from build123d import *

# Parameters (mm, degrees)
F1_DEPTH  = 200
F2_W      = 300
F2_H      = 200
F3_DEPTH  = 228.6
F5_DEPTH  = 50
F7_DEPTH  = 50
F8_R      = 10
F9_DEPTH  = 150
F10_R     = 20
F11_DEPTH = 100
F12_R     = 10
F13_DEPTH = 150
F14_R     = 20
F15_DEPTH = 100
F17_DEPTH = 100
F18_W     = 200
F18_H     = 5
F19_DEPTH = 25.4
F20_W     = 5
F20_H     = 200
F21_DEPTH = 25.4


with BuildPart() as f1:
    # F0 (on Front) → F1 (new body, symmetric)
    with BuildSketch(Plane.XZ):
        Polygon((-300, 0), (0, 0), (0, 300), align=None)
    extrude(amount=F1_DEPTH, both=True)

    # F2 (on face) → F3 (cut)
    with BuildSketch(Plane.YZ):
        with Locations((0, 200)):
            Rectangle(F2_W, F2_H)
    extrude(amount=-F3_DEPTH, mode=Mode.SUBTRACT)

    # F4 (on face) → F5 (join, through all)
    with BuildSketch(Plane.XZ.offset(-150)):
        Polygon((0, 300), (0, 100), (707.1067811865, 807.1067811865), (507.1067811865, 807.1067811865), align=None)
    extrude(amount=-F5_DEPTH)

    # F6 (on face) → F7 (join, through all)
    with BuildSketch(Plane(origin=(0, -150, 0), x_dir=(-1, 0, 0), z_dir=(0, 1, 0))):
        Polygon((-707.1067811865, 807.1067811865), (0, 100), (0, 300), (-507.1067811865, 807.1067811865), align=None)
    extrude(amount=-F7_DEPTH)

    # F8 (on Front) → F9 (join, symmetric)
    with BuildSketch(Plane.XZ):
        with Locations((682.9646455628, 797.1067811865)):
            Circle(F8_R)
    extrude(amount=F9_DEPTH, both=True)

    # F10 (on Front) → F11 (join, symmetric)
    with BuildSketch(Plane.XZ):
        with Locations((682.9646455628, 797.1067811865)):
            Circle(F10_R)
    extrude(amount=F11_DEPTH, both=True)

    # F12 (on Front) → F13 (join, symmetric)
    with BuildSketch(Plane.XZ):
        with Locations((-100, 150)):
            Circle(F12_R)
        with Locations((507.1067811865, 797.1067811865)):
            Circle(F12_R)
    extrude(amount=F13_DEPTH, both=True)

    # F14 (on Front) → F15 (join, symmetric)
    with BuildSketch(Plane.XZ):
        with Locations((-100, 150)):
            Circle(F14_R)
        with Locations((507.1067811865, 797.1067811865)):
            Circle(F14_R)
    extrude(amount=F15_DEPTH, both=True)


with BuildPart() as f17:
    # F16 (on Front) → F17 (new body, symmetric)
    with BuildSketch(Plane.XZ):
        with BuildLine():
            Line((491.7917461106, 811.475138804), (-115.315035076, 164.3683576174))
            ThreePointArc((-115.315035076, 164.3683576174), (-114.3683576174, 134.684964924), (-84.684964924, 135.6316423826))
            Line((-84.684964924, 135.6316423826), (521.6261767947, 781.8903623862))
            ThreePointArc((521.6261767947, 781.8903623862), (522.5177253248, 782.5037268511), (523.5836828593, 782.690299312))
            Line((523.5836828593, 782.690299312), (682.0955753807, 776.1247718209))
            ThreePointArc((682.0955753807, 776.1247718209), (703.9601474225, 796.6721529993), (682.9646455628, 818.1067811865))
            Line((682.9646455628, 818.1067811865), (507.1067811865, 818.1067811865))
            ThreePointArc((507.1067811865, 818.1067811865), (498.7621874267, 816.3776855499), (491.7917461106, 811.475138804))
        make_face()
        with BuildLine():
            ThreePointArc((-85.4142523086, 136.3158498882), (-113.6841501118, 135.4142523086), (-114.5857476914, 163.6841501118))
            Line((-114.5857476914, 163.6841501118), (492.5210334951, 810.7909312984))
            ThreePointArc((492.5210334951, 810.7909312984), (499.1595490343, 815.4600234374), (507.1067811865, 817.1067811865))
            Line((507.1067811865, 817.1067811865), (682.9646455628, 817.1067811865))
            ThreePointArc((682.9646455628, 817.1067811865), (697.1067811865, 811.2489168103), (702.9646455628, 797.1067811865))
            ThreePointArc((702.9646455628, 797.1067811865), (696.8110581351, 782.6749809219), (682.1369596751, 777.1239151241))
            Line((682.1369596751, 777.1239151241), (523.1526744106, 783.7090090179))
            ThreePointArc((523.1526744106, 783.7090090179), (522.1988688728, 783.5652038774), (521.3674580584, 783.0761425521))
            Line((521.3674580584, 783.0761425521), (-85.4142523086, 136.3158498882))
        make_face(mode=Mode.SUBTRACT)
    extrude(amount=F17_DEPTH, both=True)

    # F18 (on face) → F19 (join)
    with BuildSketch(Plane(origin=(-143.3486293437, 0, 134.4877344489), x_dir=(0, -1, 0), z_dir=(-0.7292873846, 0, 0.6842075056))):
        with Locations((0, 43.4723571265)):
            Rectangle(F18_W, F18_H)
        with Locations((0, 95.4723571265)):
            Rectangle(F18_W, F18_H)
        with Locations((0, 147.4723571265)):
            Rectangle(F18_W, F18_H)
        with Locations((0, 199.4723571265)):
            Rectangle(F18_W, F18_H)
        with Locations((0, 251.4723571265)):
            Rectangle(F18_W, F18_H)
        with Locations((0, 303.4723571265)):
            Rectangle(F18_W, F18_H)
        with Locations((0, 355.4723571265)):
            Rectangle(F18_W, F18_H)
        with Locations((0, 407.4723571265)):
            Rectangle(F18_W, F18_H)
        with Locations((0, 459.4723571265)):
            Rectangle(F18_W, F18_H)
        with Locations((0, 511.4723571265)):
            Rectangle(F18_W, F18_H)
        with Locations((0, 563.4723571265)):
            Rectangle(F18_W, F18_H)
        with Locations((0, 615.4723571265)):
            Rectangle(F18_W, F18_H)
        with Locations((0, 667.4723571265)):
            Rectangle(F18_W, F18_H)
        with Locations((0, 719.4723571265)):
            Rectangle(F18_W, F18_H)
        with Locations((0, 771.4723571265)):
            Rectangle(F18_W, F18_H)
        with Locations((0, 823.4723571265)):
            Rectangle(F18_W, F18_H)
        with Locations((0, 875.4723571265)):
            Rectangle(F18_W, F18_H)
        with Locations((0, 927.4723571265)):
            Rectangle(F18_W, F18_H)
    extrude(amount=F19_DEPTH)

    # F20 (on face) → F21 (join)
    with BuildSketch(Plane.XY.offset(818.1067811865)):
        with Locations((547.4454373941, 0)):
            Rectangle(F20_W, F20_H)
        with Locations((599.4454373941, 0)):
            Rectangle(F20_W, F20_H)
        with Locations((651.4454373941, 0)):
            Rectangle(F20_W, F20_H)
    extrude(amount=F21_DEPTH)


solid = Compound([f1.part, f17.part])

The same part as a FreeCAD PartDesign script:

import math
import FreeCAD as App
import Part
import Sketcher

V = App.Vector


def add_polygon(sketch, points):
    """Adds a closed chain of lines whose ends are joined by coincident constraints."""
    first, n = sketch.GeometryCount, len(points)
    for a, b in zip(points, points[1:] + points[:1]):
        sketch.addGeometry(Part.LineSegment(App.Vector(*a, 0), App.Vector(*b, 0)), False)
    for i in range(n):
        sketch.addConstraint(Sketcher.Constraint("Coincident", first + i, 2, first + (i + 1) % n, 1))

doc = App.newDocument("Part")
body = doc.addObject("PartDesign::Body", "Body")

sketch1 = body.newObject("Sketcher::SketchObject", "Sketch")
sketch1.AttachmentSupport = (doc.getObject("XZ_Plane"), [""])
sketch1.MapMode = "FlatFace"
add_polygon(sketch1, [(-300, 0), (0, 0), (0, 300)])
sketch1.addConstraint(Sketcher.Constraint("Horizontal", 0))
sketch1.addConstraint(Sketcher.Constraint("Vertical", 1))
sketch1.addConstraint(Sketcher.Constraint("Coincident", 0, 2, -1, 1))
sketch1.addConstraint(Sketcher.Constraint("Equal", 0, 1))
sketch1.addConstraint(Sketcher.Constraint("DistanceX", 0, 1, 0, 2, 300.0))
pad1 = body.newObject("PartDesign::Pad", "Pad")
pad1.Profile = sketch1
pad1.Length = 400
pad1.Midplane = True

sketch2 = body.newObject("Sketcher::SketchObject", "Sketch001")
sketch2.AttachmentSupport = (doc.getObject("YZ_Plane"), [""])
sketch2.MapMode = "FlatFace"
add_polygon(sketch2, [(-150, 300), (-150, 100), (150, 100), (150, 300)])
sketch2.addConstraint(Sketcher.Constraint("Vertical", 0))
sketch2.addConstraint(Sketcher.Constraint("Horizontal", 1))
sketch2.addConstraint(Sketcher.Constraint("Vertical", 2))
sketch2.addConstraint(Sketcher.Constraint("Horizontal", 3))
sketch2.addConstraint(Sketcher.Constraint("DistanceX", 1, 1, 1, 2, 300.0))
sketch2.addConstraint(Sketcher.Constraint("DistanceY", 0, 2, 0, 1, 200.0))
sketch2.addConstraint(Sketcher.Constraint("DistanceX", 0, 2, -1, 1, 150.0))
sketch2.addConstraint(Sketcher.Constraint("DistanceY", -1, 1, 0, 2, 100.0))
pocket1 = body.newObject("PartDesign::Pocket", "Pocket")
pocket1.Profile = sketch2
pocket1.Length = 228.6

sketch3 = body.newObject("Sketcher::SketchObject", "Sketch002")
sketch3.AttachmentSupport = (doc.getObject("XZ_Plane"), [""])
sketch3.MapMode = "FlatFace"
sketch3.AttachmentOffset = App.Placement(V(0, 0, -150), App.Rotation())
add_polygon(sketch3, [(0, 300), (0, 100), (707.106781, 807.106781), (507.106781, 807.106781)])
sketch3.addConstraint(Sketcher.Constraint("Vertical", 0))
sketch3.addConstraint(Sketcher.Constraint("Horizontal", 2))
sketch3.addConstraint(Sketcher.Constraint("PointOnObject", 0, 2, -2))
sketch3.addConstraint(Sketcher.Constraint("Parallel", 1, 3))
sketch3.addConstraint(Sketcher.Constraint("Equal", 2, 0))
sketch3.addConstraint(Sketcher.Constraint("DistanceX", 2, 2, 2, 1, 200.0))
sketch3.addConstraint(Sketcher.Constraint("Distance", 1, 1000.0))
sketch3.addConstraint(Sketcher.Constraint("DistanceY", -1, 1, 0, 2, 100.0))
pad2 = body.newObject("PartDesign::Pad", "Pad001")
pad2.Profile = sketch3
pad2.Length = 50
pad2.Reversed = True

sketch4 = body.newObject("Sketcher::SketchObject", "Sketch003")
sketch4.AttachmentSupport = (doc.getObject("XZ_Plane"), [""])
sketch4.MapMode = "FlatFace"
sketch4.AttachmentOffset = App.Placement(V(0, 0, 150), App.Rotation())
add_polygon(sketch4, [(707.106781, 807.106781), (0, 100), (0, 300), (507.106781, 807.106781)])
sketch4.addConstraint(Sketcher.Constraint("Vertical", 1))
sketch4.addConstraint(Sketcher.Constraint("Horizontal", 3))
sketch4.addConstraint(Sketcher.Constraint("PointOnObject", 0, 2, -2))
sketch4.addConstraint(Sketcher.Constraint("Parallel", 0, 2))
sketch4.addConstraint(Sketcher.Constraint("Equal", 3, 1))
sketch4.addConstraint(Sketcher.Constraint("DistanceX", 3, 1, 3, 2, 200.0))
sketch4.addConstraint(Sketcher.Constraint("Distance", 0, 1000.0))
sketch4.addConstraint(Sketcher.Constraint("DistanceY", -1, 1, 0, 2, 100.0))
pad3 = body.newObject("PartDesign::Pad", "Pad002")
pad3.Profile = sketch4
pad3.Length = 50

sketch5 = body.newObject("Sketcher::SketchObject", "Sketch004")
sketch5.AttachmentSupport = (doc.getObject("XZ_Plane"), [""])
sketch5.MapMode = "FlatFace"
sketch5.addGeometry(Part.Circle(V(682.964646, 797.106781, 0), V(0, 0, 1), 10), False)
sketch5.addConstraint(Sketcher.Constraint("Diameter", 0, 20.0))
sketch5.addConstraint(Sketcher.Constraint("DistanceY", -1, 1, 0, 3, 797.106781))
sketch5.addConstraint(Sketcher.Constraint("DistanceX", -1, 1, 0, 3, 682.964646))
pad4 = body.newObject("PartDesign::Pad", "Pad003")
pad4.Profile = sketch5
pad4.Length = 300
pad4.Midplane = True

sketch6 = body.newObject("Sketcher::SketchObject", "Sketch005")
sketch6.AttachmentSupport = (doc.getObject("XZ_Plane"), [""])
sketch6.MapMode = "FlatFace"
sketch6.addGeometry(Part.Circle(V(682.964646, 797.106781, 0), V(0, 0, 1), 20), False)
sketch6.addConstraint(Sketcher.Constraint("Diameter", 0, 40.0))
sketch6.addConstraint(Sketcher.Constraint("DistanceY", -1, 1, 0, 3, 797.106781))
sketch6.addConstraint(Sketcher.Constraint("DistanceX", -1, 1, 0, 3, 682.964646))
pad5 = body.newObject("PartDesign::Pad", "Pad004")
pad5.Profile = sketch6
pad5.Length = 200
pad5.Midplane = True

sketch7 = body.newObject("Sketcher::SketchObject", "Sketch006")
sketch7.AttachmentSupport = (doc.getObject("XZ_Plane"), [""])
sketch7.MapMode = "FlatFace"
sketch7.addGeometry(Part.Circle(V(-100, 150, 0), V(0, 0, 1), 10), False)
sketch7.addGeometry(Part.Circle(V(507.106781, 797.106781, 0), V(0, 0, 1), 10), False)
sketch7.addConstraint(Sketcher.Constraint("Equal", 0, 1))
sketch7.addConstraint(Sketcher.Constraint("Diameter", 0, 20.0))
sketch7.addConstraint(Sketcher.Constraint("DistanceX", 0, 3, -1, 1, 100.0))
sketch7.addConstraint(Sketcher.Constraint("DistanceY", -1, 1, 0, 3, 150.0))
sketch7.addConstraint(Sketcher.Constraint("DistanceX", -1, 1, 1, 3, 507.106781))
sketch7.addConstraint(Sketcher.Constraint("DistanceY", -1, 1, 1, 3, 797.106781))
pad6 = body.newObject("PartDesign::Pad", "Pad005")
pad6.Profile = sketch7
pad6.Length = 300
pad6.Midplane = True

sketch8 = body.newObject("Sketcher::SketchObject", "Sketch007")
sketch8.AttachmentSupport = (doc.getObject("XZ_Plane"), [""])
sketch8.MapMode = "FlatFace"
sketch8.addGeometry(Part.Circle(V(-100, 150, 0), V(0, 0, 1), 20), False)
sketch8.addGeometry(Part.Circle(V(507.106781, 797.106781, 0), V(0, 0, 1), 20), False)
sketch8.addConstraint(Sketcher.Constraint("Equal", 0, 1))
sketch8.addConstraint(Sketcher.Constraint("Diameter", 0, 40.0))
sketch8.addConstraint(Sketcher.Constraint("DistanceX", 0, 3, -1, 1, 100.0))
sketch8.addConstraint(Sketcher.Constraint("DistanceY", -1, 1, 0, 3, 150.0))
sketch8.addConstraint(Sketcher.Constraint("DistanceX", -1, 1, 1, 3, 507.106781))
sketch8.addConstraint(Sketcher.Constraint("DistanceY", -1, 1, 1, 3, 797.106781))
pad7 = body.newObject("PartDesign::Pad", "Pad006")
pad7.Profile = sketch8
pad7.Length = 200
pad7.Midplane = True
body2 = doc.addObject("PartDesign::Body", "Body001")

sketch9 = body2.newObject("Sketcher::SketchObject", "Sketch008")
sketch9.AttachmentSupport = (doc.getObject("XZ_Plane001"), [""])
sketch9.MapMode = "FlatFace"
sketch9.addGeometry(Part.LineSegment(V(491.791746, 811.475139, 0), V(-115.315035, 164.368358, 0)), False)
sketch9.addGeometry(Part.ArcOfCircle(Part.Circle(V(-100, 150, 0), V(0, 0, 1), 21), math.radians(136.826686), math.radians(316.826686)), False)
sketch9.addGeometry(Part.LineSegment(V(-84.684965, 135.631642, 0), V(521.626177, 781.890362, 0)), False)
sketch9.addGeometry(Part.ArcOfCircle(Part.Circle(V(523.478567, 780.152475, 0), V(0, 0, 1), 2.54), math.radians(87.628177), math.radians(136.826686)), False)
sketch9.addGeometry(Part.LineSegment(V(523.583683, 782.690299, 0), V(682.095575, 776.124772, 0)), False)
sketch9.addGeometry(Part.ArcOfCircle(Part.Circle(V(682.964646, 797.106781, 0), V(0, 0, 1), 21), math.radians(-92.371823), math.radians(90)), False)
sketch9.addGeometry(Part.LineSegment(V(682.964646, 818.106781, 0), V(507.106781, 818.106781, 0)), False)
sketch9.addGeometry(Part.ArcOfCircle(Part.Circle(V(507.106781, 797.106781, 0), V(0, 0, 1), 21), math.radians(90), math.radians(136.826686)), False)
sketch9.addGeometry(Part.LineSegment(V(521.367458, 783.076143, 0), V(-85.414252, 136.31585, 0)), False)
sketch9.addGeometry(Part.ArcOfCircle(Part.Circle(V(-100, 150, 0), V(0, 0, 1), 20), math.radians(136.826686), math.radians(316.826686)), False)
sketch9.addGeometry(Part.LineSegment(V(-114.585748, 163.68415, 0), V(492.521033, 810.790931, 0)), False)
sketch9.addGeometry(Part.ArcOfCircle(Part.Circle(V(507.106781, 797.106781, 0), V(0, 0, 1), 20), math.radians(90), math.radians(136.826686)), False)
sketch9.addGeometry(Part.LineSegment(V(507.106781, 817.106781, 0), V(682.964646, 817.106781, 0)), False)
sketch9.addGeometry(Part.ArcOfCircle(Part.Circle(V(682.964646, 797.106781, 0), V(0, 0, 1), 20), math.radians(0), math.radians(90)), False)
sketch9.addGeometry(Part.ArcOfCircle(Part.Circle(V(682.964646, 797.106781, 0), V(0, 0, 1), 20), math.radians(-92.371823), math.radians(0)), False)
sketch9.addGeometry(Part.LineSegment(V(682.13696, 777.123915, 0), V(523.152674, 783.709009, 0)), False)
sketch9.addGeometry(Part.ArcOfCircle(Part.Circle(V(523.047558, 781.171185, 0), V(0, 0, 1), 2.54), math.radians(87.628177), math.radians(131.411071)), False)
sketch9.addConstraint(Sketcher.Constraint("Tangent", 0, 2, 1, 1))
sketch9.addConstraint(Sketcher.Constraint("Tangent", 1, 2, 2, 1))
sketch9.addConstraint(Sketcher.Constraint("Tangent", 2, 2, 3, 2))
sketch9.addConstraint(Sketcher.Constraint("Tangent", 3, 1, 4, 1))
sketch9.addConstraint(Sketcher.Constraint("Tangent", 4, 2, 5, 1))
sketch9.addConstraint(Sketcher.Constraint("Tangent", 5, 2, 6, 1))
sketch9.addConstraint(Sketcher.Constraint("Tangent", 6, 2, 7, 1))
sketch9.addConstraint(Sketcher.Constraint("Tangent", 7, 2, 0, 1))
sketch9.addConstraint(Sketcher.Constraint("Tangent", 8, 2, 9, 2))
sketch9.addConstraint(Sketcher.Constraint("Tangent", 9, 1, 10, 1))
sketch9.addConstraint(Sketcher.Constraint("Tangent", 10, 2, 11, 2))
sketch9.addConstraint(Sketcher.Constraint("Tangent", 11, 1, 12, 1))
sketch9.addConstraint(Sketcher.Constraint("Tangent", 12, 2, 13, 2))
sketch9.addConstraint(Sketcher.Constraint("Tangent", 13, 1, 14, 2))
sketch9.addConstraint(Sketcher.Constraint("Tangent", 14, 1, 15, 1))
sketch9.addConstraint(Sketcher.Constraint("Tangent", 15, 2, 16, 1))
sketch9.addConstraint(Sketcher.Constraint("Coincident", 16, 2, 8, 1))
sketch9.addConstraint(Sketcher.Constraint("Horizontal", 6))
sketch9.addConstraint(Sketcher.Constraint("Horizontal", 12))
sketch9.addConstraint(Sketcher.Constraint("Coincident", 9, 3, 1, 3))
sketch9.addConstraint(Sketcher.Constraint("Coincident", 11, 3, 7, 3))
sketch9.addConstraint(Sketcher.Constraint("Coincident", 13, 3, 5, 3))
sketch9.addConstraint(Sketcher.Constraint("Equal", 1, 5))
sketch9.addConstraint(Sketcher.Constraint("Equal", 5, 7))
sketch9.addConstraint(Sketcher.Constraint("Equal", 9, 11))
sketch9.addConstraint(Sketcher.Constraint("Equal", 13, 14))
sketch9.addConstraint(Sketcher.Constraint("Equal", 3, 16))
sketch9.addConstraint(Sketcher.Constraint("Parallel", 0, 2))
sketch9.addConstraint(Sketcher.Constraint("Parallel", 2, 8))
sketch9.addConstraint(Sketcher.Constraint("Parallel", 4, 15))
sketch9.addConstraint(Sketcher.Constraint("Horizontal", 14, 3, 13, 1))
sketch9.addConstraint(Sketcher.Constraint("Radius", 1, 21.0))
sketch9.addConstraint(Sketcher.Constraint("Radius", 9, 20.0))
sketch9.addConstraint(Sketcher.Constraint("Radius", 3, 2.54))
sketch9.addConstraint(Sketcher.Constraint("DistanceX", 1, 3, -1, 1, 100.0))
sketch9.addConstraint(Sketcher.Constraint("DistanceY", -1, 1, 1, 3, 150.0))
sketch9.addConstraint(Sketcher.Constraint("DistanceY", -1, 1, 3, 1, 782.690299))
sketch9.addConstraint(Sketcher.Constraint("DistanceX", 0, 2, 3, 3, 638.793602))
sketch9.addConstraint(Sketcher.Constraint("DistanceX", 7, 3, 3, 1, 16.476902))
sketch9.addConstraint(Sketcher.Constraint("DistanceX", 16, 2, 16, 3, 1.6801))
sketch9.addConstraint(Sketcher.Constraint("DistanceX", 6, 2, 6, 1, 175.857864))
pad8 = body2.newObject("PartDesign::Pad", "Pad007")
pad8.Profile = sketch9
pad8.Length = 200
pad8.Midplane = True

sketch10 = body2.newObject("Sketcher::SketchObject", "Sketch009")
sketch10.Placement = App.Placement(V(-143.348629, 0, 134.487734), App.Rotation(V(0, -1, 0), V(0.684207506, 0, 0.729287385), V(-0.729287385, 0, 0.684207506), "ZXY"))
add_polygon(sketch10, [(-100, 45.972357), (-100, 40.972357), (100, 40.972357), (100, 45.972357)])
add_polygon(sketch10, [(-100, 97.972357), (-100, 92.972357), (100, 92.972357), (100, 97.972357)])
add_polygon(sketch10, [(-100, 149.972357), (-100, 144.972357), (100, 144.972357), (100, 149.972357)])
add_polygon(sketch10, [(-100, 201.972357), (-100, 196.972357), (100, 196.972357), (100, 201.972357)])
add_polygon(sketch10, [(-100, 253.972357), (-100, 248.972357), (100, 248.972357), (100, 253.972357)])
add_polygon(sketch10, [(-100, 305.972357), (-100, 300.972357), (100, 300.972357), (100, 305.972357)])
add_polygon(sketch10, [(-100, 357.972358), (-100, 352.972358), (100, 352.972358), (100, 357.972358)])
add_polygon(sketch10, [(-100, 409.972358), (-100, 404.972358), (100, 404.972358), (100, 409.972358)])
add_polygon(sketch10, [(-100, 461.972358), (-100, 456.972358), (100, 456.972358), (100, 461.972358)])
add_polygon(sketch10, [(-100, 513.972358), (-100, 508.972358), (100, 508.972358), (100, 513.972358)])
add_polygon(sketch10, [(-100, 565.972358), (-100, 560.972358), (100, 560.972358), (100, 565.972358)])
add_polygon(sketch10, [(-100, 617.972358), (-100, 612.972358), (100, 612.972358), (100, 617.972358)])
add_polygon(sketch10, [(-100, 669.972358), (-100, 664.972358), (100, 664.972358), (100, 669.972358)])
add_polygon(sketch10, [(-100, 721.972358), (-100, 716.972358), (100, 716.972358), (100, 721.972358)])
add_polygon(sketch10, [(-100, 773.972358), (-100, 768.972358), (100, 768.972358), (100, 773.972358)])
add_polygon(sketch10, [(-100, 825.972358), (-100, 820.972358), (100, 820.972358), (100, 825.972358)])
add_polygon(sketch10, [(-100, 877.972358), (-100, 872.972358), (100, 872.972358), (100, 877.972358)])
add_polygon(sketch10, [(-100, 929.972358), (-100, 924.972358), (100, 924.972358), (100, 929.972358)])
sketch10.addConstraint(Sketcher.Constraint("Vertical", 0))
sketch10.addConstraint(Sketcher.Constraint("Horizontal", 1))
sketch10.addConstraint(Sketcher.Constraint("Vertical", 2))
sketch10.addConstraint(Sketcher.Constraint("Horizontal", 3))
sketch10.addConstraint(Sketcher.Constraint("Vertical", 4))
sketch10.addConstraint(Sketcher.Constraint("Horizontal", 5))
sketch10.addConstraint(Sketcher.Constraint("Vertical", 6))
sketch10.addConstraint(Sketcher.Constraint("Horizontal", 7))
sketch10.addConstraint(Sketcher.Constraint("Vertical", 8))
sketch10.addConstraint(Sketcher.Constraint("Horizontal", 9))
sketch10.addConstraint(Sketcher.Constraint("Vertical", 10))
sketch10.addConstraint(Sketcher.Constraint("Horizontal", 11))
sketch10.addConstraint(Sketcher.Constraint("Vertical", 12))
sketch10.addConstraint(Sketcher.Constraint("Horizontal", 13))
sketch10.addConstraint(Sketcher.Constraint("Vertical", 14))
sketch10.addConstraint(Sketcher.Constraint("Horizontal", 15))
sketch10.addConstraint(Sketcher.Constraint("Vertical", 16))
sketch10.addConstraint(Sketcher.Constraint("Horizontal", 17))
sketch10.addConstraint(Sketcher.Constraint("Vertical", 18))
sketch10.addConstraint(Sketcher.Constraint("Horizontal", 19))
sketch10.addConstraint(Sketcher.Constraint("Vertical", 20))
sketch10.addConstraint(Sketcher.Constraint("Horizontal", 21))
sketch10.addConstraint(Sketcher.Constraint("Vertical", 22))
sketch10.addConstraint(Sketcher.Constraint("Horizontal", 23))
sketch10.addConstraint(Sketcher.Constraint("Vertical", 24))
sketch10.addConstraint(Sketcher.Constraint("Horizontal", 25))
sketch10.addConstraint(Sketcher.Constraint("Vertical", 26))
sketch10.addConstraint(Sketcher.Constraint("Horizontal", 27))
sketch10.addConstraint(Sketcher.Constraint("Vertical", 28))
sketch10.addConstraint(Sketcher.Constraint("Horizontal", 29))
sketch10.addConstraint(Sketcher.Constraint("Vertical", 30))
sketch10.addConstraint(Sketcher.Constraint("Horizontal", 31))
sketch10.addConstraint(Sketcher.Constraint("Vertical", 32))
sketch10.addConstraint(Sketcher.Constraint("Horizontal", 33))
sketch10.addConstraint(Sketcher.Constraint("Vertical", 34))
sketch10.addConstraint(Sketcher.Constraint("Horizontal", 35))
sketch10.addConstraint(Sketcher.Constraint("Vertical", 36))
sketch10.addConstraint(Sketcher.Constraint("Horizontal", 37))
sketch10.addConstraint(Sketcher.Constraint("Vertical", 38))
sketch10.addConstraint(Sketcher.Constraint("Horizontal", 39))
sketch10.addConstraint(Sketcher.Constraint("Vertical", 40))
sketch10.addConstraint(Sketcher.Constraint("Horizontal", 41))
sketch10.addConstraint(Sketcher.Constraint("Vertical", 42))
sketch10.addConstraint(Sketcher.Constraint("Horizontal", 43))
sketch10.addConstraint(Sketcher.Constraint("Vertical", 44))
sketch10.addConstraint(Sketcher.Constraint("Horizontal", 45))
sketch10.addConstraint(Sketcher.Constraint("Vertical", 46))
sketch10.addConstraint(Sketcher.Constraint("Horizontal", 47))
sketch10.addConstraint(Sketcher.Constraint("Vertical", 48))
sketch10.addConstraint(Sketcher.Constraint("Horizontal", 49))
sketch10.addConstraint(Sketcher.Constraint("Vertical", 50))
sketch10.addConstraint(Sketcher.Constraint("Horizontal", 51))
sketch10.addConstraint(Sketcher.Constraint("Vertical", 52))
sketch10.addConstraint(Sketcher.Constraint("Horizontal", 53))
sketch10.addConstraint(Sketcher.Constraint("Vertical", 54))
sketch10.addConstraint(Sketcher.Constraint("Horizontal", 55))
sketch10.addConstraint(Sketcher.Constraint("Vertical", 56))
sketch10.addConstraint(Sketcher.Constraint("Horizontal", 57))
sketch10.addConstraint(Sketcher.Constraint("Vertical", 58))
sketch10.addConstraint(Sketcher.Constraint("Horizontal", 59))
sketch10.addConstraint(Sketcher.Constraint("Vertical", 60))
sketch10.addConstraint(Sketcher.Constraint("Horizontal", 61))
sketch10.addConstraint(Sketcher.Constraint("Vertical", 62))
sketch10.addConstraint(Sketcher.Constraint("Horizontal", 63))
sketch10.addConstraint(Sketcher.Constraint("Vertical", 64))
sketch10.addConstraint(Sketcher.Constraint("Horizontal", 65))
sketch10.addConstraint(Sketcher.Constraint("Vertical", 66))
sketch10.addConstraint(Sketcher.Constraint("Horizontal", 67))
sketch10.addConstraint(Sketcher.Constraint("Vertical", 68))
sketch10.addConstraint(Sketcher.Constraint("Horizontal", 69))
sketch10.addConstraint(Sketcher.Constraint("Vertical", 70))
sketch10.addConstraint(Sketcher.Constraint("Horizontal", 71))
sketch10.addConstraint(Sketcher.Constraint("Vertical", 3, 2, 4, 2))
sketch10.addConstraint(Sketcher.Constraint("Vertical", 2, 2, 5, 2))
sketch10.addConstraint(Sketcher.Constraint("Vertical", 7, 2, 8, 2))
sketch10.addConstraint(Sketcher.Constraint("Vertical", 6, 2, 9, 2))
sketch10.addConstraint(Sketcher.Constraint("Vertical", 11, 2, 12, 2))
sketch10.addConstraint(Sketcher.Constraint("Vertical", 10, 2, 13, 2))
sketch10.addConstraint(Sketcher.Constraint("Vertical", 15, 2, 16, 2))
sketch10.addConstraint(Sketcher.Constraint("Vertical", 14, 2, 17, 2))
sketch10.addConstraint(Sketcher.Constraint("Vertical", 19, 2, 20, 2))
sketch10.addConstraint(Sketcher.Constraint("Vertical", 18, 2, 21, 2))
sketch10.addConstraint(Sketcher.Constraint("Vertical", 23, 2, 24, 2))
sketch10.addConstraint(Sketcher.Constraint("Vertical", 22, 2, 25, 2))
sketch10.addConstraint(Sketcher.Constraint("Vertical", 27, 2, 28, 2))
sketch10.addConstraint(Sketcher.Constraint("Vertical", 26, 2, 29, 2))
sketch10.addConstraint(Sketcher.Constraint("Vertical", 31, 2, 32, 2))
sketch10.addConstraint(Sketcher.Constraint("Vertical", 30, 2, 33, 2))
sketch10.addConstraint(Sketcher.Constraint("Vertical", 35, 2, 36, 2))
sketch10.addConstraint(Sketcher.Constraint("Vertical", 34, 2, 37, 2))
sketch10.addConstraint(Sketcher.Constraint("Vertical", 39, 2, 40, 2))
sketch10.addConstraint(Sketcher.Constraint("Vertical", 38, 2, 41, 2))
sketch10.addConstraint(Sketcher.Constraint("Vertical", 43, 2, 44, 2))
sketch10.addConstraint(Sketcher.Constraint("Vertical", 42, 2, 45, 2))
sketch10.addConstraint(Sketcher.Constraint("Vertical", 47, 2, 48, 2))
sketch10.addConstraint(Sketcher.Constraint("Vertical", 46, 2, 49, 2))
sketch10.addConstraint(Sketcher.Constraint("Vertical", 51, 2, 52, 2))
sketch10.addConstraint(Sketcher.Constraint("Vertical", 50, 2, 53, 2))
sketch10.addConstraint(Sketcher.Constraint("Vertical", 55, 2, 56, 2))
sketch10.addConstraint(Sketcher.Constraint("Vertical", 54, 2, 57, 2))
sketch10.addConstraint(Sketcher.Constraint("Vertical", 59, 2, 60, 2))
sketch10.addConstraint(Sketcher.Constraint("Vertical", 58, 2, 61, 2))
sketch10.addConstraint(Sketcher.Constraint("Vertical", 63, 2, 64, 2))
sketch10.addConstraint(Sketcher.Constraint("Vertical", 62, 2, 65, 2))
sketch10.addConstraint(Sketcher.Constraint("Vertical", 67, 2, 68, 2))
sketch10.addConstraint(Sketcher.Constraint("Vertical", 66, 2, 69, 2))
sketch10.addConstraint(Sketcher.Constraint("Equal", 2, 4))
sketch10.addConstraint(Sketcher.Constraint("Equal", 6, 8))
sketch10.addConstraint(Sketcher.Constraint("Equal", 10, 12))
sketch10.addConstraint(Sketcher.Constraint("Equal", 14, 16))
sketch10.addConstraint(Sketcher.Constraint("Equal", 18, 20))
sketch10.addConstraint(Sketcher.Constraint("Equal", 22, 24))
sketch10.addConstraint(Sketcher.Constraint("Equal", 26, 28))
sketch10.addConstraint(Sketcher.Constraint("Equal", 30, 32))
sketch10.addConstraint(Sketcher.Constraint("Equal", 34, 36))
sketch10.addConstraint(Sketcher.Constraint("Equal", 38, 40))
sketch10.addConstraint(Sketcher.Constraint("Equal", 42, 44))
sketch10.addConstraint(Sketcher.Constraint("Equal", 46, 48))
sketch10.addConstraint(Sketcher.Constraint("Equal", 50, 52))
sketch10.addConstraint(Sketcher.Constraint("Equal", 54, 56))
sketch10.addConstraint(Sketcher.Constraint("Equal", 58, 60))
sketch10.addConstraint(Sketcher.Constraint("Equal", 62, 64))
sketch10.addConstraint(Sketcher.Constraint("Equal", 66, 68))
sketch10.addConstraint(Sketcher.Constraint("DistanceX", 1, 1, 1, 2, 200.0))
sketch10.addConstraint(Sketcher.Constraint("DistanceY", 0, 2, 0, 1, 5.0))
sketch10.addConstraint(Sketcher.Constraint("DistanceX", 0, 2, -1, 1, 100.0))
sketch10.addConstraint(Sketcher.Constraint("DistanceY", -1, 1, 56, 2, 768.972358))
sketch10.addConstraint(Sketcher.Constraint("DistanceY", -1, 1, 60, 2, 820.972358))
sketch10.addConstraint(Sketcher.Constraint("DistanceY", -1, 1, 64, 2, 872.972358))
sketch10.addConstraint(Sketcher.Constraint("DistanceY", -1, 1, 68, 2, 924.972358))
sketch10.addConstraint(Sketcher.Constraint("DistanceY", -1, 1, 0, 2, 40.972357))
sketch10.addConstraint(Sketcher.Constraint("DistanceY", -1, 1, 4, 2, 92.972357))
sketch10.addConstraint(Sketcher.Constraint("DistanceY", -1, 1, 8, 2, 144.972357))
sketch10.addConstraint(Sketcher.Constraint("DistanceY", -1, 1, 12, 2, 196.972357))
sketch10.addConstraint(Sketcher.Constraint("DistanceY", -1, 1, 16, 2, 248.972357))
sketch10.addConstraint(Sketcher.Constraint("DistanceY", -1, 1, 20, 2, 300.972357))
sketch10.addConstraint(Sketcher.Constraint("DistanceY", -1, 1, 24, 2, 352.972358))
sketch10.addConstraint(Sketcher.Constraint("DistanceY", -1, 1, 28, 2, 404.972358))
sketch10.addConstraint(Sketcher.Constraint("DistanceY", -1, 1, 32, 2, 456.972358))
sketch10.addConstraint(Sketcher.Constraint("DistanceY", -1, 1, 36, 2, 508.972358))
sketch10.addConstraint(Sketcher.Constraint("DistanceY", -1, 1, 40, 2, 560.972358))
sketch10.addConstraint(Sketcher.Constraint("DistanceY", -1, 1, 44, 2, 612.972358))
sketch10.addConstraint(Sketcher.Constraint("DistanceY", -1, 1, 48, 2, 664.972358))
sketch10.addConstraint(Sketcher.Constraint("DistanceY", -1, 1, 52, 2, 716.972358))
pad9 = body2.newObject("PartDesign::Pad", "Pad008")
pad9.Profile = sketch10
pad9.Length = 25.4

sketch11 = body2.newObject("Sketcher::SketchObject", "Sketch010")
sketch11.AttachmentSupport = (doc.getObject("XY_Plane001"), [""])
sketch11.MapMode = "FlatFace"
sketch11.AttachmentOffset = App.Placement(V(0, 0, 818.106781), App.Rotation())
add_polygon(sketch11, [(544.945437, 100), (544.945437, -100), (549.945437, -100), (549.945437, 100)])
add_polygon(sketch11, [(596.945437, 100), (596.945437, -100), (601.945437, -100), (601.945437, 100)])
add_polygon(sketch11, [(648.945437, 100), (648.945437, -100), (653.945437, -100), (653.945437, 100)])
sketch11.addConstraint(Sketcher.Constraint("Vertical", 0))
sketch11.addConstraint(Sketcher.Constraint("Horizontal", 1))
sketch11.addConstraint(Sketcher.Constraint("Vertical", 2))
sketch11.addConstraint(Sketcher.Constraint("Horizontal", 3))
sketch11.addConstraint(Sketcher.Constraint("Vertical", 4))
sketch11.addConstraint(Sketcher.Constraint("Horizontal", 5))
sketch11.addConstraint(Sketcher.Constraint("Vertical", 6))
sketch11.addConstraint(Sketcher.Constraint("Horizontal", 7))
sketch11.addConstraint(Sketcher.Constraint("Vertical", 8))
sketch11.addConstraint(Sketcher.Constraint("Horizontal", 9))
sketch11.addConstraint(Sketcher.Constraint("Vertical", 10))
sketch11.addConstraint(Sketcher.Constraint("Horizontal", 11))
sketch11.addConstraint(Sketcher.Constraint("Horizontal", 1, 2, 4, 2))
sketch11.addConstraint(Sketcher.Constraint("Horizontal", 3, 2, 6, 2))
sketch11.addConstraint(Sketcher.Constraint("Horizontal", 5, 2, 8, 2))
sketch11.addConstraint(Sketcher.Constraint("Horizontal", 7, 2, 10, 2))
sketch11.addConstraint(Sketcher.Constraint("Equal", 3, 5))
sketch11.addConstraint(Sketcher.Constraint("Equal", 7, 9))
sketch11.addConstraint(Sketcher.Constraint("DistanceX", 1, 1, 1, 2, 5.0))
sketch11.addConstraint(Sketcher.Constraint("DistanceY", 0, 2, 0, 1, 200.0))
sketch11.addConstraint(Sketcher.Constraint("DistanceY", 0, 2, -1, 1, 100.0))
sketch11.addConstraint(Sketcher.Constraint("DistanceX", 1, 2, 4, 2, 47.0))
sketch11.addConstraint(Sketcher.Constraint("DistanceX", 5, 2, 8, 2, 47.0))
sketch11.addConstraint(Sketcher.Constraint("DistanceX", -1, 1, 0, 2, 544.945437))
pad10 = body2.newObject("PartDesign::Pad", "Pad009")
pad10.Profile = sketch11
pad10.Length = 25.4

doc.recompute()
